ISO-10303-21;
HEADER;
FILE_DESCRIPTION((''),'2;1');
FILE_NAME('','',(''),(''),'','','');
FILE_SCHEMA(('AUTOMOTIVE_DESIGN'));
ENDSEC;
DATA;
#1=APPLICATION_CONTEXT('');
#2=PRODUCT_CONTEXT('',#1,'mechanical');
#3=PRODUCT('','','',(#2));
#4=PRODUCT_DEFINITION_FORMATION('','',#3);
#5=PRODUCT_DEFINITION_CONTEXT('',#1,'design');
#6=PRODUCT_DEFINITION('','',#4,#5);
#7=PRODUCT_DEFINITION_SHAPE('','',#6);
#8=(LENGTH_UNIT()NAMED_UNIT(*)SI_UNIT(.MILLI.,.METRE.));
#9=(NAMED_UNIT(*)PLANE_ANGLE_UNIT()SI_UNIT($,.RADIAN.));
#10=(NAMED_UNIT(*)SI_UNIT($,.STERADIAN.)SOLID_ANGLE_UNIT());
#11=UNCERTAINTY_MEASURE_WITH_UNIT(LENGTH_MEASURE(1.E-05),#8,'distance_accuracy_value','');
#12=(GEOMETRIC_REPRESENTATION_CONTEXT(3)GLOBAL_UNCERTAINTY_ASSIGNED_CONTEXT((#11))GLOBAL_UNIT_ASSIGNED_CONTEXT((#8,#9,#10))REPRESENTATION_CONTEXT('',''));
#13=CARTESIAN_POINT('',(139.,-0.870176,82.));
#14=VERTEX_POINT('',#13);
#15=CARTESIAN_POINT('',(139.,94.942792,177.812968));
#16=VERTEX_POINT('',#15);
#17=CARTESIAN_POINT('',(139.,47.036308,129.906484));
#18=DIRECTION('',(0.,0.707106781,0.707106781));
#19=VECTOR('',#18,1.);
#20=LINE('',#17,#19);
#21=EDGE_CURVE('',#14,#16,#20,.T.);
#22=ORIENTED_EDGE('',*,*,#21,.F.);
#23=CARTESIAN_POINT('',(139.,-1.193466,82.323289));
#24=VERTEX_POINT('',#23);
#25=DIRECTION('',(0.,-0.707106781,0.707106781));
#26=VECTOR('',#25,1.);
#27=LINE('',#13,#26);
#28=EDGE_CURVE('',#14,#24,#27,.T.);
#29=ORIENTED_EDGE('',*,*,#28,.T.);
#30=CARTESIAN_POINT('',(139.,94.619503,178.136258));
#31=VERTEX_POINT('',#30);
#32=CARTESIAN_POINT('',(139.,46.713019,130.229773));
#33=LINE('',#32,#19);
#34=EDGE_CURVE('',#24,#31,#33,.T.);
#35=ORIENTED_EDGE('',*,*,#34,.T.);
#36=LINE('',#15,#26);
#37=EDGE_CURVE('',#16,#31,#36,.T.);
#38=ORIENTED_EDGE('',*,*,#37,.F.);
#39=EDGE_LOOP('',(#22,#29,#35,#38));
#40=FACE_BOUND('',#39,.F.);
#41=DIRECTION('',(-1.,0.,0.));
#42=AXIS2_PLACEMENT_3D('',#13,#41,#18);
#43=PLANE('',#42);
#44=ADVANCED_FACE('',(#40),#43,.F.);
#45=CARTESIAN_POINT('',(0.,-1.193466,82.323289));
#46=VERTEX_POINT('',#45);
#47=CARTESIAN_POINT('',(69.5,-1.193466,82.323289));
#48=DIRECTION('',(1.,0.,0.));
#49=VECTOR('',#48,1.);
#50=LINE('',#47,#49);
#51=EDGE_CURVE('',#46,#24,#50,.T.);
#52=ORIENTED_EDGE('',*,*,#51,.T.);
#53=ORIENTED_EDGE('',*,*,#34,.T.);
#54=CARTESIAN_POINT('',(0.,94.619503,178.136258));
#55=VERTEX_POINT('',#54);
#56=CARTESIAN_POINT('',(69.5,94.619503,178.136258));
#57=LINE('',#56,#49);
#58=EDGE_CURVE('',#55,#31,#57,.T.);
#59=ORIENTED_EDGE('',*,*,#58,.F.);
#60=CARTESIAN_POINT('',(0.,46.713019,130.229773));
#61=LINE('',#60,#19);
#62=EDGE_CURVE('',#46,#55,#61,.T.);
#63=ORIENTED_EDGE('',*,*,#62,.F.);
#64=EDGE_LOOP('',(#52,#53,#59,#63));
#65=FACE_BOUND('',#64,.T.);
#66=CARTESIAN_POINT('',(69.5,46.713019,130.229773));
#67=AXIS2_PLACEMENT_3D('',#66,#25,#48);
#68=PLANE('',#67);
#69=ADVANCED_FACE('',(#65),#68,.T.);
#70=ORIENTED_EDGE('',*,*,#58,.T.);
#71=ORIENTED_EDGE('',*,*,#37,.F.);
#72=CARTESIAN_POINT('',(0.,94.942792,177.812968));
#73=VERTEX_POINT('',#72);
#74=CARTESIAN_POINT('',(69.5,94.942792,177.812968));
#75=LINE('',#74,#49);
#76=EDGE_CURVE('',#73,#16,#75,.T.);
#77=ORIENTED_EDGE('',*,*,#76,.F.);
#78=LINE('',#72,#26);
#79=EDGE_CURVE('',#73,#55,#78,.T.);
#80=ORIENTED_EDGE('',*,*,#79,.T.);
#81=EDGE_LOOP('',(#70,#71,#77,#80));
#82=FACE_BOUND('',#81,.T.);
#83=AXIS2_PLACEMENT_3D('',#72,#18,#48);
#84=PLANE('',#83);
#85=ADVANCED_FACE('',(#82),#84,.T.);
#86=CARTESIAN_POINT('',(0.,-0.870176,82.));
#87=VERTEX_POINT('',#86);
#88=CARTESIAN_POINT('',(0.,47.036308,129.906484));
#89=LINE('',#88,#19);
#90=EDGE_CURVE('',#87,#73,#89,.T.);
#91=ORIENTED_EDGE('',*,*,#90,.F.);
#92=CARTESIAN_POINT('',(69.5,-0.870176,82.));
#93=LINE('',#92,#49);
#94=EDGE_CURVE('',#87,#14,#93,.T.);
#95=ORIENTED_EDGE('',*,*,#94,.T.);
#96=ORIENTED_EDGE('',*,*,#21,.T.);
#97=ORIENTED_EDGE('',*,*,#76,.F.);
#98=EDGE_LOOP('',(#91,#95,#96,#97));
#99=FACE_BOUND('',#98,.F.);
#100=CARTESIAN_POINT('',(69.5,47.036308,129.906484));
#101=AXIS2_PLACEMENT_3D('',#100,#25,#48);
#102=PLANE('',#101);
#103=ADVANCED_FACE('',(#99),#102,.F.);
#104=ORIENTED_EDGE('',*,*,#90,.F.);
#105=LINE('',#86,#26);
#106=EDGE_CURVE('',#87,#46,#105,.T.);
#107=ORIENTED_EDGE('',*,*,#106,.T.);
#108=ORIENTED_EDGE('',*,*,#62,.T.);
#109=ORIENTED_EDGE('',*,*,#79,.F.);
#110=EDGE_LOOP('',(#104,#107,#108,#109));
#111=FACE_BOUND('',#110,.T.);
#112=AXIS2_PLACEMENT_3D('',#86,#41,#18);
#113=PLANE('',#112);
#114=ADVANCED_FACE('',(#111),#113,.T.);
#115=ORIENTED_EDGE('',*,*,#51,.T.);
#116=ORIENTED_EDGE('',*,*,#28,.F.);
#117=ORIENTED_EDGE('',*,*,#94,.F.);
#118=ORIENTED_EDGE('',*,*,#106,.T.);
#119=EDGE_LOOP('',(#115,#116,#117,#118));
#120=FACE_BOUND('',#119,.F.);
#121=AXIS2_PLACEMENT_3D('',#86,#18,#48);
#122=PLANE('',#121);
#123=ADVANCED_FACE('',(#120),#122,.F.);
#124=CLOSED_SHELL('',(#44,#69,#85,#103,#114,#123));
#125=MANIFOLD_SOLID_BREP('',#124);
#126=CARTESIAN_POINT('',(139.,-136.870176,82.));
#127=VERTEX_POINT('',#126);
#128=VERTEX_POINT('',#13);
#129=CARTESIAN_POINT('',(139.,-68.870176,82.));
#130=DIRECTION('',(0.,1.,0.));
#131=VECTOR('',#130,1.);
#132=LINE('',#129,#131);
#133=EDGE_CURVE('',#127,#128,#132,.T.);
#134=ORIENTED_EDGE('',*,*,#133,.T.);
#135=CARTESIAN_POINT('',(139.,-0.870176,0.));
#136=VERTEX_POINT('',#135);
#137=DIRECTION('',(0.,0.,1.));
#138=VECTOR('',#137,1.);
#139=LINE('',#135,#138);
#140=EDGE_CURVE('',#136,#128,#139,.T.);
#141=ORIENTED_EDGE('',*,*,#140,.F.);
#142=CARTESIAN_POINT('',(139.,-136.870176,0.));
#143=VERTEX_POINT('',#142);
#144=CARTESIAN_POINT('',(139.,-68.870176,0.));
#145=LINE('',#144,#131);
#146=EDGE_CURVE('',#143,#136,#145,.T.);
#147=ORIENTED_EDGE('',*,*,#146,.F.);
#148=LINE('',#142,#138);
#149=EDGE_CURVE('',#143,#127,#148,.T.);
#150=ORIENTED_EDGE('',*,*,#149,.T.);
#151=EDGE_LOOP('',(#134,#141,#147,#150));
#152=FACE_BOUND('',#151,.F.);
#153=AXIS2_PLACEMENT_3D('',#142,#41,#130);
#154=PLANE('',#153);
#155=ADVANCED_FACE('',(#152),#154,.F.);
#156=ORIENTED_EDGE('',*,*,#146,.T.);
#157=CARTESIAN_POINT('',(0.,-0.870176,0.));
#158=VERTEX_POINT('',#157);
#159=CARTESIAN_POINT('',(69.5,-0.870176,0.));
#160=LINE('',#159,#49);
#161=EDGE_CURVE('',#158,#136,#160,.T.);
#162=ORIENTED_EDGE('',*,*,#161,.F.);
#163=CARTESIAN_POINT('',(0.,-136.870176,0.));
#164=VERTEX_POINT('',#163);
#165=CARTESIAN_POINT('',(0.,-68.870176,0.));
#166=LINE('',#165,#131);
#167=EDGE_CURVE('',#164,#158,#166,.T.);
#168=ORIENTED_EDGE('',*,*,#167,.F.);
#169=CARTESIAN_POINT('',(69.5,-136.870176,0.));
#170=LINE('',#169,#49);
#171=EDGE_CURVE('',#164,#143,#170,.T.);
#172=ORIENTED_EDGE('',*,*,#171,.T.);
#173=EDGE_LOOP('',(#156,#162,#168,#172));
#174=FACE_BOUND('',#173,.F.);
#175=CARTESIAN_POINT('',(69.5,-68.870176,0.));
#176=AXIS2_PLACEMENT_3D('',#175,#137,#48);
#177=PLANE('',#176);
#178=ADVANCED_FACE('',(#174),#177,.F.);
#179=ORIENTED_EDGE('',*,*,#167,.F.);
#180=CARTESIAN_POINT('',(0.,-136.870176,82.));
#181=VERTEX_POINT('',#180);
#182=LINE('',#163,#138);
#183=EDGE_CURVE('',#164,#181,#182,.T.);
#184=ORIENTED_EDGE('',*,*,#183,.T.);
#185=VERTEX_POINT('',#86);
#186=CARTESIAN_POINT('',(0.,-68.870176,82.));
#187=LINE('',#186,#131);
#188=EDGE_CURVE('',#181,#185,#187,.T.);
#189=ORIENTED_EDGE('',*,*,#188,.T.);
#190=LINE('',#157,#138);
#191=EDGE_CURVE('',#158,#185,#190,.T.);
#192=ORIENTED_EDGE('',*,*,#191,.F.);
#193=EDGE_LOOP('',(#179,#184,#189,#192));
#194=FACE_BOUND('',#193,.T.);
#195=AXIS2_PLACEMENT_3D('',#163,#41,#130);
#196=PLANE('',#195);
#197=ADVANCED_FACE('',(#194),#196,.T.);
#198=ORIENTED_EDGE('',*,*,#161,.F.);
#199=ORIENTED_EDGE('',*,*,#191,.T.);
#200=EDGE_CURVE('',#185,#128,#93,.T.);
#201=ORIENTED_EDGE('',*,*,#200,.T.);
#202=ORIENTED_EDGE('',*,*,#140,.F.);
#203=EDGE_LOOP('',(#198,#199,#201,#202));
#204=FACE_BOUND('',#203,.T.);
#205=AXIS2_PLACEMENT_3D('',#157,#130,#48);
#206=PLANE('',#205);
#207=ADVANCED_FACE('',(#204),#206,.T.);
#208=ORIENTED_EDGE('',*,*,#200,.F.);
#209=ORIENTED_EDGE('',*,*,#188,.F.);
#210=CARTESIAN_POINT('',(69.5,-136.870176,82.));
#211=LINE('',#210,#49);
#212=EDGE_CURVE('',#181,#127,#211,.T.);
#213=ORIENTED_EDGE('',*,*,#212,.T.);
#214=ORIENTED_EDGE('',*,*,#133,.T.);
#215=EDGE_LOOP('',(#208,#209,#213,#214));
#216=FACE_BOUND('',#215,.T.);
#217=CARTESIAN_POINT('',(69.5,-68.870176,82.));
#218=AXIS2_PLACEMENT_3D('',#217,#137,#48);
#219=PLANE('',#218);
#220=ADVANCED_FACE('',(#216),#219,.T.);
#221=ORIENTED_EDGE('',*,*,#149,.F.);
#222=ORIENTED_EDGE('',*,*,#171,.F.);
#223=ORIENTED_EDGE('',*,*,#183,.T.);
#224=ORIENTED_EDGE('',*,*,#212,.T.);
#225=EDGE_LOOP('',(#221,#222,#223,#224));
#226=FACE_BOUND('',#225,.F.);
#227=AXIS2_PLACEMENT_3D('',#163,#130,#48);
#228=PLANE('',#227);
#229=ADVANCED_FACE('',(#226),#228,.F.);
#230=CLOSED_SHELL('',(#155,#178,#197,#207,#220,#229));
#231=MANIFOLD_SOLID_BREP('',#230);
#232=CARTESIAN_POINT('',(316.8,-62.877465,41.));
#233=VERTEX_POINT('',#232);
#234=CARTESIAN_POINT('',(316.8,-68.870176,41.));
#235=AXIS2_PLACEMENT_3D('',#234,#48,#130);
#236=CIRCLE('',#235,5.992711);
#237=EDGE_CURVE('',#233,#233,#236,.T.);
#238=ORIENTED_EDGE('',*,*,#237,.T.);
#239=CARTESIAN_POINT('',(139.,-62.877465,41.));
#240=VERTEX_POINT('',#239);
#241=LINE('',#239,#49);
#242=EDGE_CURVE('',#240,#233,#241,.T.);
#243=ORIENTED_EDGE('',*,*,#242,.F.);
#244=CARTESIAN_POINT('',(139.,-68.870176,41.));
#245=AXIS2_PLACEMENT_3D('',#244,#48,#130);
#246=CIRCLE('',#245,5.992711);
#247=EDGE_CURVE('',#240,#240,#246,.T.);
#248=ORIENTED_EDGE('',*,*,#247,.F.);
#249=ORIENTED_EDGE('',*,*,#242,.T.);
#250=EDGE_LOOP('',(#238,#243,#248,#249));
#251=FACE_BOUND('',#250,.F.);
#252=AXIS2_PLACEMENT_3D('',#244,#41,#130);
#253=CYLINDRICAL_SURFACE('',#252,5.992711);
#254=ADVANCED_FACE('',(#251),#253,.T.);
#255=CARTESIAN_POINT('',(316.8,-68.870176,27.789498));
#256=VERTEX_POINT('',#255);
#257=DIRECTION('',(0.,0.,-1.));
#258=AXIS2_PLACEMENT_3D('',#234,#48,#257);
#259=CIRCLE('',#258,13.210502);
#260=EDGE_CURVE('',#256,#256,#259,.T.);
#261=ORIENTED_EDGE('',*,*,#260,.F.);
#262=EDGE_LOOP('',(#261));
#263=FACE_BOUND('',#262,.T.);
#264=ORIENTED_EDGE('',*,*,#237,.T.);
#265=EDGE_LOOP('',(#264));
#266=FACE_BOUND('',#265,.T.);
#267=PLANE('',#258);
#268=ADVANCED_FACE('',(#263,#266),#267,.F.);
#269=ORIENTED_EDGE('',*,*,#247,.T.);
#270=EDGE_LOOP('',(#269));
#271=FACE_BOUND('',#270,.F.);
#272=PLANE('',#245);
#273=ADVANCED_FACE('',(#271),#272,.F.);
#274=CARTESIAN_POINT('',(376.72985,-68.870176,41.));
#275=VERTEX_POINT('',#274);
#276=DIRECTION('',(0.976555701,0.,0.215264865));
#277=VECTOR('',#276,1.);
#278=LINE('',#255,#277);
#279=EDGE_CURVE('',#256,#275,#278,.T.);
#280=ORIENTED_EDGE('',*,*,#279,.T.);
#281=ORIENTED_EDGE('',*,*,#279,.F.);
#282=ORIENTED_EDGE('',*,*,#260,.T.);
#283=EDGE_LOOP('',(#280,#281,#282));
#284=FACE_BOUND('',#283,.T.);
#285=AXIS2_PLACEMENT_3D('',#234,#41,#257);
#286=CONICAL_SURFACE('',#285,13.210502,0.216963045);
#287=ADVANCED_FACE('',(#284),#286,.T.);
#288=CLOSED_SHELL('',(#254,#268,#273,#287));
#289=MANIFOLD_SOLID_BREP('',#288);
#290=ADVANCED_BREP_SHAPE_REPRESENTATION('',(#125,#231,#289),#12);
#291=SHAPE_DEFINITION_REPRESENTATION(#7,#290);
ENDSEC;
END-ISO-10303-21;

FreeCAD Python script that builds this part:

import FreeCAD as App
import Part
import Sketcher

V = App.Vector
Q = App.Units.Quantity


def add_polygon(sketch, points):
    """Adds a closed chain of lines whose ends are joined by coincident constraints."""
    first, n = sketch.GeometryCount, len(points)
    for a, b in zip(points, points[1:] + points[:1]):
        sketch.addGeometry(Part.LineSegment(App.Vector(*a, 0), App.Vector(*b, 0)), False)
    for i in range(n):
        sketch.addConstraint(Sketcher.Constraint("Coincident", first + i, 2, first + (i + 1) % n, 1))

doc = App.newDocument("Part")
body = doc.addObject("PartDesign::Body", "Body")

sketch1 = body.newObject("Sketcher::SketchObject", "Sketch")
sketch1.AttachmentSupport = (doc.getObject("XY_Plane"), [""])
sketch1.MapMode = "FlatFace"
add_polygon(sketch1, [(0, -0.870176), (0, -136.870176), (139, -136.870176), (139, -0.870176)])
sketch1.addConstraint(Sketcher.Constraint("Vertical", 0))
sketch1.addConstraint(Sketcher.Constraint("Horizontal", 1))
sketch1.addConstraint(Sketcher.Constraint("Vertical", 2))
sketch1.addConstraint(Sketcher.Constraint("Horizontal", 3))
sketch1.addConstraint(Sketcher.Constraint("PointOnObject", 0, 2, -2))
sketch1.addConstraint(Sketcher.Constraint("DistanceX", 1, 1, 1, 2, Q("139 mm")))
sketch1.addConstraint(Sketcher.Constraint("DistanceY", 0, 2, 0, 1, Q("136 mm")))
sketch1.addConstraint(Sketcher.Constraint("DistanceY", 0, 2, -1, 1, Q("136.870176 mm")))
pad1 = body.newObject("PartDesign::Pad", "Pad")
pad1.Profile = sketch1
pad1.Length = 82
body2 = doc.addObject("PartDesign::Body", "Body001")

sketch2 = body2.newObject("Sketcher::SketchObject", "Sketch001")
sketch2.Placement = App.Placement(V(0, -41.435088, 41.435088), App.Rotation(V(1, 0, 0), V(0, 0.707106781, 0.707106781), V(0, -0.707106781, 0.707106781), "ZXY"))
add_polygon(sketch2, [(0, 192.867448), (0, 57.367448), (139, 57.367448), (139, 192.867448)])
sketch2.addConstraint(Sketcher.Constraint("Vertical", 0))
sketch2.addConstraint(Sketcher.Constraint("Horizontal", 1))
sketch2.addConstraint(Sketcher.Constraint("Vertical", 2))
sketch2.addConstraint(Sketcher.Constraint("Horizontal", 3))
sketch2.addConstraint(Sketcher.Constraint("PointOnObject", 0, 2, -2))
sketch2.addConstraint(Sketcher.Constraint("DistanceX", 1, 1, 1, 2, Q("139 mm")))
sketch2.addConstraint(Sketcher.Constraint("DistanceY", 0, 2, 0, 1, Q("135.5 mm")))
sketch2.addConstraint(Sketcher.Constraint("DistanceY", -1, 1, 0, 2, Q("57.367448 mm")))
pad2 = body2.newObject("PartDesign::Pad", "Pad001")
pad2.Profile = sketch2
pad2.Length = 0.4572
body3 = doc.addObject("PartDesign::Body", "Body002")

sketch3 = body3.newObject("Sketcher::SketchObject", "Sketch002")
sketch3.AttachmentSupport = (doc.getObject("YZ_Plane002"), [""])
sketch3.MapMode = "FlatFace"
sketch3.AttachmentOffset = App.Placement(V(0, 0, 139), App.Rotation())
sketch3.addGeometry(Part.Circle(V(-68.870176, 41, 0), V(0, 0, 1), 5.992711), False)
sketch3.addConstraint(Sketcher.Constraint("DistanceY", -1, 1, 0, 3, Q("41 mm")))
sketch3.addConstraint(Sketcher.Constraint("Diameter", 0, Q("11.985422 mm")))
sketch3.addConstraint(Sketcher.Constraint("DistanceX", 0, 3, -1, 1, Q("68.870176 mm")))
pad3 = body3.newObject("PartDesign::Pad", "Pad002")
pad3.Profile = sketch3
pad3.Length = 177.8

sketch4 = body3.newObject("Sketcher::SketchObject", "Sketch003")
sketch4.AttachmentSupport = (doc.getObject("XZ_Plane002"), [""])
sketch4.MapMode = "FlatFace"
sketch4.AttachmentOffset = App.Placement(V(0, 0, 68.870176), App.Rotation())
add_polygon(sketch4, [(376.72985, 41), (316.8, 41), (316.8, 27.789498)])
sketch4.addGeometry(Part.LineSegment(V(316.8, 41, 0), V(376.72985, 41, 0)), True)
sketch4.addConstraint(Sketcher.Constraint("Horizontal", 0))
sketch4.addConstraint(Sketcher.Constraint("Vertical", 1))
sketch4.addConstraint(Sketcher.Constraint("Horizontal", 3))
sketch4.addConstraint(Sketcher.Constraint("Coincident", 3, 1, 0, 2))
sketch4.addConstraint(Sketcher.Constraint("Equal", 0, 3))
sketch4.addConstraint(Sketcher.Constraint("DistanceY", -1, 1, 0, 2, Q("41 mm")))
sketch4.addConstraint(Sketcher.Constraint("DistanceX", -1, 1, 0, 2, Q("316.8 mm")))
sketch4.addConstraint(Sketcher.Constraint("DistanceX", 0, 2, 0, 1, Q("59.92985 mm")))
sketch4.addConstraint(Sketcher.Constraint("DistanceY", 1, 2, 1, 1, Q("13.210502 mm")))
revolution = body3.newObject("PartDesign::Revolution", "Revolution")
revolution.Profile = sketch4
revolution.ReferenceAxis = (sketch4, ["Axis0"])
revolution.Angle = 360

doc.recompute()
